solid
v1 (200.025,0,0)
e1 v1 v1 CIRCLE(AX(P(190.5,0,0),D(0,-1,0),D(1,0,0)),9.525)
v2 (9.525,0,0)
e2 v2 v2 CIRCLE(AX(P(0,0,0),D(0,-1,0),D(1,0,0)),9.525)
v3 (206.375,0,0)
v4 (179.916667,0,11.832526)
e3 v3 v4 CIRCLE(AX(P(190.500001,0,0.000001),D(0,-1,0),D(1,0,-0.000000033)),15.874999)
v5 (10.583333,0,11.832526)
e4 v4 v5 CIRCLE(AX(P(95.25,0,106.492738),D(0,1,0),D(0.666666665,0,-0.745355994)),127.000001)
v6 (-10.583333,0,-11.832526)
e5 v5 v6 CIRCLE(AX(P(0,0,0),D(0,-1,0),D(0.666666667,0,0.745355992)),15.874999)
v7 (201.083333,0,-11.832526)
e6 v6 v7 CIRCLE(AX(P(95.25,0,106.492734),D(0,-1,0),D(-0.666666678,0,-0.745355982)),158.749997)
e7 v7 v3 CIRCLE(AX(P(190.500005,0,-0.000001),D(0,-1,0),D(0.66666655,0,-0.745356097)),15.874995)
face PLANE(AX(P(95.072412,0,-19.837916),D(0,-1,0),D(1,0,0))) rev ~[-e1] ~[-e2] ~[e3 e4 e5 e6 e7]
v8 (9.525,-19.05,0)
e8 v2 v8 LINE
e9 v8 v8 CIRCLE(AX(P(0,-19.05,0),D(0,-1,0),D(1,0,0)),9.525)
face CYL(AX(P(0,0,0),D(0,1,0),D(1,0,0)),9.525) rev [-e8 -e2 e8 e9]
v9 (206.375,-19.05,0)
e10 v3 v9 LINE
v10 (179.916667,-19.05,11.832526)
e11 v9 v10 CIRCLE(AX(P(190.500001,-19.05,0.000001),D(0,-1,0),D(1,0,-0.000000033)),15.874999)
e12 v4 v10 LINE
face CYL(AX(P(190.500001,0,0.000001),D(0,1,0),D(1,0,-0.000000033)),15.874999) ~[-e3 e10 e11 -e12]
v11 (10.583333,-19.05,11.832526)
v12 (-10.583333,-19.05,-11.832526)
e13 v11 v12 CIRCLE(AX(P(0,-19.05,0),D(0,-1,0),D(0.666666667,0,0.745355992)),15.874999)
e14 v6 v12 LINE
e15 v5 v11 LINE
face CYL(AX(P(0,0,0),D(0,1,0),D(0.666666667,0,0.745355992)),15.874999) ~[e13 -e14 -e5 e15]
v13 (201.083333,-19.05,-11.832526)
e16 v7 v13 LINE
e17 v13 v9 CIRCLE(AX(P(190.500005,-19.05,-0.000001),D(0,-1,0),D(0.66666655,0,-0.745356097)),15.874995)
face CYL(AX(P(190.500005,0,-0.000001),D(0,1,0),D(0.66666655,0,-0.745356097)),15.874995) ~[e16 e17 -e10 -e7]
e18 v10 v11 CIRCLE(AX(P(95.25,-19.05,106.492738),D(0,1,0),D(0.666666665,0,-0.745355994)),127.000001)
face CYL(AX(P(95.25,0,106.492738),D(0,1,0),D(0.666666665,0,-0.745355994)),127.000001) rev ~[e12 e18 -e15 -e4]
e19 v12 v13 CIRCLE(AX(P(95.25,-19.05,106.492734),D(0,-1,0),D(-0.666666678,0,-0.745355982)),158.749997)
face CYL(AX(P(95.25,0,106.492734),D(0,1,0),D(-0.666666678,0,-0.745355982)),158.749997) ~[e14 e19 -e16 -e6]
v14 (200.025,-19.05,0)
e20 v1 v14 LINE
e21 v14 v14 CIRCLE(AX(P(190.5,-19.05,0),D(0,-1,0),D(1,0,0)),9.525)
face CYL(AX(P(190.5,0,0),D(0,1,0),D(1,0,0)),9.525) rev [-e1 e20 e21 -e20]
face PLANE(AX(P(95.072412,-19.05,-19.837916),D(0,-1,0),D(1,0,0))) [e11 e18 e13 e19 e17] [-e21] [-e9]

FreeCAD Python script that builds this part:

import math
import FreeCAD as App
import Part
import Sketcher

V = App.Vector
Q = App.Units.Quantity

doc = App.newDocument("Part")
params = doc.addObject("Spreadsheet::Sheet", "Params")
for row, (alias, value) in enumerate([
    ("sketch1_radius", "5 in"),
    ("sketch1_diameter", "0.75 in"),
    ("sketch1_radius2", "6.2499999 in"),
    ("pad1_length", "0.75 in"),
], start=1):
    params.set(f"A{row}", alias)
    params.set(f"B{row}", "=" + value)
    params.setAlias(f"B{row}", alias)

body = doc.addObject("PartDesign::Body", "Body")

# Sketch on XZ plane
sketch1 = body.newObject("Sketcher::SketchObject", "Sketch")
sketch1.AttachmentSupport = (doc.getObject("XZ_Plane"), [""])
sketch1.MapMode = "FlatFace"
sketch1.addGeometry([
    Part.ArcOfCircle(Part.Circle(V(95.25, 106.492734, 0), V(0, 0, 1), 158.749997), math.radians(-131.810316), math.radians(-48.189684)),  # 0
    Part.ArcOfCircle(Part.Circle(V(190.500005, -0.000001, 0), V(0, 0, 1), 15.874995), math.radians(-48.189694), math.radians(0.000005)),  # 1
    Part.ArcOfCircle(Part.Circle(V(190.500001, 0.000001, 0), V(0, 0, 1), 15.874999), math.radians(-0.000002), math.radians(131.810318)),  # 2
    Part.ArcOfCircle(Part.Circle(V(95.25, 106.492738, 0), V(0, 0, 1), 127.000001), math.radians(-131.810315), math.radians(-48.189685)),  # 3
    Part.ArcOfCircle(Part.Circle(V(0, 0, 0), V(0, 0, 1), 15.874999), math.radians(48.189685), math.radians(228.189685)),  # 4
    Part.Circle(V(0, 0, 0), V(0, 0, 1), 9.525),  # 5
    Part.Circle(V(190.5, 0, 0), V(0, 0, 1), 9.525),  # 6
], False)
sketch1.addConstraint([
    Sketcher.Constraint("Tangent", 0, 2, 1, 1),
    Sketcher.Constraint("Tangent", 1, 2, 2, 1),
    Sketcher.Constraint("Tangent", 2, 2, 3, 2),
    Sketcher.Constraint("Tangent", 3, 1, 4, 1),
    Sketcher.Constraint("Tangent", 4, 2, 0, 1),
    Sketcher.Constraint("Coincident", 4, 3, -1, 1),
    Sketcher.Constraint("Coincident", 5, 3, -1, 1),
    Sketcher.Constraint("Coincident", 3, 3, 0, 3),
    Sketcher.Constraint("Coincident", 6, 3, 1, 3),
    Sketcher.Constraint("Equal", 2, 4),
    Sketcher.Constraint("Equal", 5, 6),
    Sketcher.Constraint("PointOnObject", 1, 3, -1),
    Sketcher.Constraint("PointOnObject", 1, 2, -1),
    Sketcher.Constraint("Radius", 3, Q("5 in")),
    Sketcher.Constraint("Diameter", 5, Q("0.75 in")),
    Sketcher.Constraint("Radius", 0, Q("6.2499999 in")),
    Sketcher.Constraint("DistanceX", -1, 1, 1, 3, Q("7.5000002 in")),
])
sketch1.setExpression("Constraints[13]", "Params.sketch1_radius")
sketch1.setExpression("Constraints[14]", "Params.sketch1_diameter")
sketch1.setExpression("Constraints[15]", "Params.sketch1_radius2")
pad1 = body.newObject("PartDesign::Pad", "Pad")
pad1.Profile = sketch1
pad1.setExpression("Length", "Params.pad1_length")

doc.recompute()
